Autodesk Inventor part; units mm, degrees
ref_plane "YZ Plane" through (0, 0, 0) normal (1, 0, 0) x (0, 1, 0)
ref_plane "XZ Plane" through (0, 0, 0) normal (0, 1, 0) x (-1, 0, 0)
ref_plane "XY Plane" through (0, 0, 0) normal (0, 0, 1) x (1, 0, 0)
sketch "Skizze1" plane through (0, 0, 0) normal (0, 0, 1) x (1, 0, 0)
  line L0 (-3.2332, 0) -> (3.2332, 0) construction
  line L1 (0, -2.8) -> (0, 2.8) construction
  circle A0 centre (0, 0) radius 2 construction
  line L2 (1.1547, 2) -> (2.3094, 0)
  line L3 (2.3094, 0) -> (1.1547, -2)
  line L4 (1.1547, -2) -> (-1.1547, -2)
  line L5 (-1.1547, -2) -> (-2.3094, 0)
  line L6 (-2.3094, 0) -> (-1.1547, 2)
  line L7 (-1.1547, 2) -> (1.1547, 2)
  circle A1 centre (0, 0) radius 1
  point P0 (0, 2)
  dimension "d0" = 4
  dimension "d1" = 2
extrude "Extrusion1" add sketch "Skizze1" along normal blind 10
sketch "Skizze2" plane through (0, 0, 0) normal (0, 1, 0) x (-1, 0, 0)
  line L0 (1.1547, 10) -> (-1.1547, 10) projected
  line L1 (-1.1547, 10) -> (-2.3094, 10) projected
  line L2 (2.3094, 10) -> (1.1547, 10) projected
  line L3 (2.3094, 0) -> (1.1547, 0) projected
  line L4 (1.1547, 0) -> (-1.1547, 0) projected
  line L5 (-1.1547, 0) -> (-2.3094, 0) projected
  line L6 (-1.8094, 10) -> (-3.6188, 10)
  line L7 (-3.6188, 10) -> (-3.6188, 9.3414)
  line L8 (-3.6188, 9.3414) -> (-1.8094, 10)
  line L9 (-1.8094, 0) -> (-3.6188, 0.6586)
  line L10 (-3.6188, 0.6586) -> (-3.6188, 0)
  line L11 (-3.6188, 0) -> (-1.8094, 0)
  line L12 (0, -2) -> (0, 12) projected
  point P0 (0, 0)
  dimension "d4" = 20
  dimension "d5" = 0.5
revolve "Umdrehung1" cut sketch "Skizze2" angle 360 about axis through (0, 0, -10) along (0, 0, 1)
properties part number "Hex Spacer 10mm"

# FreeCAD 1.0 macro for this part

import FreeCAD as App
import Part
import Sketcher

V = App.Vector
Q = App.Units.Quantity


def add_polygon(sketch, points):
    """Adds a closed chain of lines whose ends are joined by coincident constraints."""
    first, n = sketch.GeometryCount, len(points)
    for a, b in zip(points, points[1:] + points[:1]):
        sketch.addGeometry(Part.LineSegment(App.Vector(*a, 0), App.Vector(*b, 0)), False)
    for i in range(n):
        sketch.addConstraint(Sketcher.Constraint("Coincident", first + i, 2, first + (i + 1) % n, 1))

doc = App.newDocument("Part")
body = doc.addObject("PartDesign::Body", "Body")

# Sketch on XY plane
sketch1 = body.newObject("Sketcher::SketchObject", "Sketch")
sketch1.AttachmentSupport = (doc.getObject("XY_Plane"), [""])
sketch1.MapMode = "FlatFace"
add_polygon(sketch1, [(2.3094, 0), (1.1547, 2), (-1.1547, 2), (-2.3094, 0), (-1.1547, -2), (1.1547, -2)])  # lines 0-5
sketch1.addGeometry(Part.Circle(V(0, 0, 0), V(0, 0, 1), 1), False)  # 6
sketch1.addConstraint(Sketcher.Constraint("Horizontal", 1))
sketch1.addConstraint(Sketcher.Constraint("Horizontal", 4))
sketch1.addConstraint(Sketcher.Constraint("Coincident", 6, 3, -1, 1))
sketch1.addConstraint(Sketcher.Constraint("Symmetric", 0, 2, 3, 2, -1, 1))
sketch1.addConstraint(Sketcher.Constraint("Symmetric", 2, 2, 5, 2, -1, 1))
sketch1.addConstraint(Sketcher.Constraint("PointOnObject", 2, 2, -1))
sketch1.addConstraint(Sketcher.Constraint("Parallel", 2, 5))
sketch1.addConstraint(Sketcher.Constraint("Vertical", 1, 2, 3, 2))
sketch1.addConstraint(Sketcher.Constraint("Diameter", 6, 2.0))
sketch1.addConstraint(Sketcher.Constraint("DistanceY", -1, 1, 0, 2, 2.0))
sketch1.addConstraint(Sketcher.Constraint("Angle", 0, Q("120 deg")))
sketch1.addConstraint(Sketcher.Constraint("DistanceX", 1, 2, 1, 1, 2.3094))
pad1 = body.newObject("PartDesign::Pad", "Pad")
pad1.Profile = sketch1
pad1.Length = 10

# Sketch on XZ plane
sketch2 = body.newObject("Sketcher::SketchObject", "Sketch001")
sketch2.AttachmentSupport = (doc.getObject("XZ_Plane"), [""])
sketch2.MapMode = "FlatFace"
add_polygon(sketch2, [(3.6188, 9.3414), (1.8094, 10), (3.6188, 10)])  # lines 0-2
add_polygon(sketch2, [(3.6188, 0), (1.8094, 0), (3.6188, 0.6586)])  # lines 3-5
sketch2.addConstraint(Sketcher.Constraint("Horizontal", 1))
sketch2.addConstraint(Sketcher.Constraint("Vertical", 2))
sketch2.addConstraint(Sketcher.Constraint("Horizontal", 3))
sketch2.addConstraint(Sketcher.Constraint("Vertical", 5))
sketch2.addConstraint(Sketcher.Constraint("PointOnObject", 3, 2, -1))
sketch2.addConstraint(Sketcher.Constraint("Vertical", 0, 2, 3, 2))
sketch2.addConstraint(Sketcher.Constraint("Vertical", 2, 2, 4, 2))
sketch2.addConstraint(Sketcher.Constraint("Equal", 2, 5))
sketch2.addConstraint(Sketcher.Constraint("Angle", 0, Q("159.999 deg")))
sketch2.addConstraint(Sketcher.Constraint("DistanceY", -1, 1, 0, 2, 10.0))
sketch2.addConstraint(Sketcher.Constraint("DistanceX", 1, 1, 1, 2, 1.8094))
sketch2.addConstraint(Sketcher.Constraint("DistanceX", -1, 1, 0, 2, 1.8094))
groove = body.newObject("PartDesign::Groove", "Groove")
groove.Profile = sketch2
groove.ReferenceAxis = (sketch2, ["V_Axis"])
groove.Angle = 360

doc.recompute()
